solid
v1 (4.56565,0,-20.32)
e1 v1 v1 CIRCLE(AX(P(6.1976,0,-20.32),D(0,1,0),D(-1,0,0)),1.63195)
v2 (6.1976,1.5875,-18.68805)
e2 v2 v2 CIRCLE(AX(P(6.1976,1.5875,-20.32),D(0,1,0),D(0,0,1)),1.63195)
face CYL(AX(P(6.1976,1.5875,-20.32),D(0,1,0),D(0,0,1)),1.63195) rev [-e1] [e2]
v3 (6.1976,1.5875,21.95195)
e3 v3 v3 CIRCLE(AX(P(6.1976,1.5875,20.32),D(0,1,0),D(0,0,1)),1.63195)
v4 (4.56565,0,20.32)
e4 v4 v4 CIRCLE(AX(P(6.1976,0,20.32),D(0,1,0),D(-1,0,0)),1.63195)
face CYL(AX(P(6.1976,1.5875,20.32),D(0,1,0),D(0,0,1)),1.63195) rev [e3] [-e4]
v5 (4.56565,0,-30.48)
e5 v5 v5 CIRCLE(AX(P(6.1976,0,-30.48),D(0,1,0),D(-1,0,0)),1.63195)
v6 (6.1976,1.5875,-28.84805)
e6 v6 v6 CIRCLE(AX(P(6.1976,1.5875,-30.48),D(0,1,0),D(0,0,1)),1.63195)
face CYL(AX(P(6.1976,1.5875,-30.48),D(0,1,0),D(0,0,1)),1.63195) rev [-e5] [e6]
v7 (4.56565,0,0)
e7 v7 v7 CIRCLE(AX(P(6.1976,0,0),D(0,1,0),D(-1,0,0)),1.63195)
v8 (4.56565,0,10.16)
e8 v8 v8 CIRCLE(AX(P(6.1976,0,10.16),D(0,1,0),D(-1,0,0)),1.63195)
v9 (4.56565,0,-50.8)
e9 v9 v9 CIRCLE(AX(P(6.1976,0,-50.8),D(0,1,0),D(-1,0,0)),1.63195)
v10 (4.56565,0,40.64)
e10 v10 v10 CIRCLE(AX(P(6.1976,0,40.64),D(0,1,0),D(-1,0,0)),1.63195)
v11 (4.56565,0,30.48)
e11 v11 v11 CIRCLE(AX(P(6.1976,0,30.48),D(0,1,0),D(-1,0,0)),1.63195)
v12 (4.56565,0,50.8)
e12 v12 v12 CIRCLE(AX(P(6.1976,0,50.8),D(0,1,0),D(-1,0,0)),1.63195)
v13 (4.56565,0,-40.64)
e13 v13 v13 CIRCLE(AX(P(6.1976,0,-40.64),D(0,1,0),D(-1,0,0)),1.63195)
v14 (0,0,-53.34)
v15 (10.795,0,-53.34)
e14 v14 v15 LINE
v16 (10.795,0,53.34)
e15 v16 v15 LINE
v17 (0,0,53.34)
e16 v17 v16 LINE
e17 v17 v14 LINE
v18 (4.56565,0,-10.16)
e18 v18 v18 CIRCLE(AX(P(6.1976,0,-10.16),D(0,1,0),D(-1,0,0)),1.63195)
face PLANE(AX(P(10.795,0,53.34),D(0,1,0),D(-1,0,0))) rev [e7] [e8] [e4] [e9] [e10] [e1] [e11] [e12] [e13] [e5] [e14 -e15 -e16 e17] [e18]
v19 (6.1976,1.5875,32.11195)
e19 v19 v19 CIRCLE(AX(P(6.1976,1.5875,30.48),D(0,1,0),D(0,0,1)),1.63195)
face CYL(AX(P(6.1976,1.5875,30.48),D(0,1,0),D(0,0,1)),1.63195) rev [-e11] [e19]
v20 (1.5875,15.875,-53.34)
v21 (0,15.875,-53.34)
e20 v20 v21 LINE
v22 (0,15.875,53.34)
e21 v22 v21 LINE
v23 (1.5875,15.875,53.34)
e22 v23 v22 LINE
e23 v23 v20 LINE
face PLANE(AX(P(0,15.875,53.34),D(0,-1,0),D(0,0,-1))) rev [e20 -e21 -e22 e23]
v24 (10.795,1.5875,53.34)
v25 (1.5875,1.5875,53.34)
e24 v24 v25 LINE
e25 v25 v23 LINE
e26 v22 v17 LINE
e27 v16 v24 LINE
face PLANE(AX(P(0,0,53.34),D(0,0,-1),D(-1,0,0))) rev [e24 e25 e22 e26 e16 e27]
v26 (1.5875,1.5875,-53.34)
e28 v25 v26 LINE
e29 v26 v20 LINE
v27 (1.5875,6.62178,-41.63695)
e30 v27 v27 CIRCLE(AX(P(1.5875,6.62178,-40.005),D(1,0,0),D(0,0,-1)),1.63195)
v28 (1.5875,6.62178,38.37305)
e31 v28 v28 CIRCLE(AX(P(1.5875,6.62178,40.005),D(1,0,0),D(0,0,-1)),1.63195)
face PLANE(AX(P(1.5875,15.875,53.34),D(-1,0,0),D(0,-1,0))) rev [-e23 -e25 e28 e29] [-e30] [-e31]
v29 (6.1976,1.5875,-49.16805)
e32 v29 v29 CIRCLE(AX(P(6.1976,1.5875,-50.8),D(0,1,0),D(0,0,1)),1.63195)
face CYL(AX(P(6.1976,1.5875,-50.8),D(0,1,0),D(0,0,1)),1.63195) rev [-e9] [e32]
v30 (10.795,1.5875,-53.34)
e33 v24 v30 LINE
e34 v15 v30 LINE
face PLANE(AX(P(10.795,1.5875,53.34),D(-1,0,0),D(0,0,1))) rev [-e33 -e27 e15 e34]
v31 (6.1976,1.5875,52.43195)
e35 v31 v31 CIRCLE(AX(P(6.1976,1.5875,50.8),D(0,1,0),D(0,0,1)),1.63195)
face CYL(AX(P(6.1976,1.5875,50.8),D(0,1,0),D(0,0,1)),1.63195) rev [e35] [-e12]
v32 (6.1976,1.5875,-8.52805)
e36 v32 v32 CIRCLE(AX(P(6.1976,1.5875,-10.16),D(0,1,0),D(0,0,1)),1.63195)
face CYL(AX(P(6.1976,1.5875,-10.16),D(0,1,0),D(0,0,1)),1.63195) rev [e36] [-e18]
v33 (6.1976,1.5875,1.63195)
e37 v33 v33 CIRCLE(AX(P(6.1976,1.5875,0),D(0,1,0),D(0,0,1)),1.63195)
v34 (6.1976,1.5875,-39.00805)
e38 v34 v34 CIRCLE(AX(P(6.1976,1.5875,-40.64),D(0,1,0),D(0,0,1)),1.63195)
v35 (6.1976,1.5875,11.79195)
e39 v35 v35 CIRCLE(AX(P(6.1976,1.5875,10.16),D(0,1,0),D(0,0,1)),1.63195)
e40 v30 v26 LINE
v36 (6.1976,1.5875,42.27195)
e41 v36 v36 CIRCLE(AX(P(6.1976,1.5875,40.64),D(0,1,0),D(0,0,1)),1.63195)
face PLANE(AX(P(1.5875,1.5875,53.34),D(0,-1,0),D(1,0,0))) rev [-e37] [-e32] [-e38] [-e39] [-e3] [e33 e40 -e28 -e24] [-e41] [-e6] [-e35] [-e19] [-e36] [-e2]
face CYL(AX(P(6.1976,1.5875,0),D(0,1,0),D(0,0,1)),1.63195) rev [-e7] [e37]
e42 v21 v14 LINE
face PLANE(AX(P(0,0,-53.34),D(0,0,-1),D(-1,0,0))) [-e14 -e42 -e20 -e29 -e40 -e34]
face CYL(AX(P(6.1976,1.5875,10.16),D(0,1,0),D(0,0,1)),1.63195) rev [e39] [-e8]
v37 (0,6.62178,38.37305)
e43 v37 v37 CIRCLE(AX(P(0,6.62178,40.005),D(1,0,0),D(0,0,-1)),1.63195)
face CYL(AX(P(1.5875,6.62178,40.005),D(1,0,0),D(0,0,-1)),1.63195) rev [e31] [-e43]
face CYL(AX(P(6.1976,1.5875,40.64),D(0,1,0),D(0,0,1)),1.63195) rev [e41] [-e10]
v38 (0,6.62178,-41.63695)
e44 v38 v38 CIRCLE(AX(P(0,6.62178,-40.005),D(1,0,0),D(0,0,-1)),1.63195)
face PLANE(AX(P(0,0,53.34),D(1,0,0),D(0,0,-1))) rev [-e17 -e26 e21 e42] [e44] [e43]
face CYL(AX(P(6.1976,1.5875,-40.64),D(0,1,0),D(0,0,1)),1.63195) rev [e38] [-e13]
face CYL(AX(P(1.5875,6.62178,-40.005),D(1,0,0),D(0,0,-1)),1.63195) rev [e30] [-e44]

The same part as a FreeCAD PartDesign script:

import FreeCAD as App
import Part
import Sketcher

V = App.Vector
Q = App.Units.Quantity

doc = App.newDocument("Part")
params = doc.addObject("Spreadsheet::Sheet", "Params")
for row, (alias, value) in enumerate([
    ("sketch1_width", "0.425 in"),
    ("sketch1_width2", "0.0625 in"),
    ("sketch1_height", "0.625 in"),
    ("pad1_length", "4.2 in"),
    ("sketch2_width", "0.6 in"),
    ("groove_angle", "360 deg"),
    ("linearpattern_pitch", "0.4 in"),
    ("linearpattern2_pitch", "0.4 in"),
    ("hole_diameter", "0.1285 in"),
    ("hole_depth", "0.6 in"),
], start=1):
    params.set(f"A{row}", alias)
    params.set(f"B{row}", "=" + value)
    params.setAlias(f"B{row}", alias)

body = doc.addObject("PartDesign::Body", "Body")

sketch1 = doc.addObject("Sketcher::SketchObject", "Sketch")
body.addObject(sketch1)
sketch1.AttachmentSupport = (doc.XY_Plane, [""])
sketch1.MapMode = "FlatFace"
sketch1.addGeometry([
    Part.LineSegment(V(0, 15.9, 0), V(0, 0, 0)),
    Part.LineSegment(V(0, 0, 0), V(10.8, 0, 0)),
    Part.LineSegment(V(10.8, 0, 0), V(10.8, 1.6, 0)),
    Part.LineSegment(V(10.8, 1.6, 0), V(1.6, 1.6, 0)),
    Part.LineSegment(V(1.6, 1.6, 0), V(1.6, 15.9, 0)),
    Part.LineSegment(V(1.6, 15.9, 0), V(0, 15.9, 0)),
], False)
sketch1.addConstraint([
    Sketcher.Constraint("Coincident", 0, 2, 1, 1),
    Sketcher.Constraint("Coincident", 1, 2, 2, 1),
    Sketcher.Constraint("Coincident", 2, 2, 3, 1),
    Sketcher.Constraint("Coincident", 3, 2, 4, 1),
    Sketcher.Constraint("Coincident", 4, 2, 5, 1),
    Sketcher.Constraint("Coincident", 5, 2, 0, 1),
    Sketcher.Constraint("Vertical", 0),
    Sketcher.Constraint("Horizontal", 1),
    Sketcher.Constraint("Vertical", 2),
    Sketcher.Constraint("Horizontal", 3),
    Sketcher.Constraint("Vertical", 4),
    Sketcher.Constraint("Horizontal", 5),
    Sketcher.Constraint("Coincident", 0, 2, -1, 1),
    Sketcher.Constraint("Equal", 5, 2),
    Sketcher.Constraint("DistanceX", 1, 1, 1, 2, Q("0.425 in")),
    Sketcher.Constraint("DistanceX", 5, 2, 5, 1, Q("0.0625 in")),
    Sketcher.Constraint("DistanceY", 0, 2, 0, 1, Q("0.625 in")),
])
sketch1.setExpression("Constraints[14]", "Params.sketch1_width")
sketch1.setExpression("Constraints[15]", "Params.sketch1_width2")
sketch1.setExpression("Constraints[16]", "Params.sketch1_height")
pad1 = doc.addObject("PartDesign::Pad", "Pad")
body.addObject(pad1)
pad1.Profile = sketch1
pad1.setExpression("Length", "Params.pad1_length")
pad1.Midplane = True

sketch2 = doc.addObject("Sketcher::SketchObject", "Sketch001")
body.addObject(sketch2)
sketch2.AttachmentSupport = (doc.YZ_Plane, [""])
sketch2.MapMode = "FlatFace"
sketch2.AttachmentOffset = App.Placement(V(0, 0, 0.244 * 25.4), App.Rotation())
sketch2.addGeometry([
    Part.LineSegment(V(-14.6, 0, 0), V(1.6, 0, 0)),
    Part.LineSegment(V(1.6, 0, 0), V(1.6, 1.6, 0)),
    Part.LineSegment(V(1.6, 1.6, 0), V(-13.7, 1.6, 0)),
    Part.LineSegment(V(-13.7, 1.6, 0), V(-14.6, 0, 0)),
], False)
sketch2.addConstraint([
    Sketcher.Constraint("Coincident", 0, 2, 1, 1),
    Sketcher.Constraint("Coincident", 1, 2, 2, 1),
    Sketcher.Constraint("Coincident", 2, 2, 3, 1),
    Sketcher.Constraint("Coincident", 3, 2, 0, 1),
    Sketcher.Constraint("Horizontal", 0),
    Sketcher.Constraint("Vertical", 1),
    Sketcher.Constraint("Horizontal", 2),
    Sketcher.Constraint("PointOnObject", 0, 2, -1),
    Sketcher.Constraint("DistanceX", 2, 2, 2, 1, Q("0.6 in")),
    Sketcher.Constraint("Angle", 3, Q("-121 deg")),
    Sketcher.Constraint("DistanceX", -1, 1, 0, 2, Q("0.0625 in")),
    Sketcher.Constraint("DistanceY", 1, 1, 1, 2, 1.63195),
])
sketch2.setExpression("Constraints[8]", "Params.sketch2_width")
groove = doc.addObject("PartDesign::Groove", "Groove")
body.addObject(groove)
groove.Profile = sketch2
groove.ReferenceAxis = (sketch2, ["H_Axis"])
groove.setExpression("Angle", "Params.groove_angle")
doc.recompute()

linearpattern = doc.addObject("PartDesign::LinearPattern", "LinearPattern")
body.addObject(linearpattern)
linearpattern.Originals = [groove]
linearpattern.Direction = (doc.Z_Axis, [""])
linearpattern.Mode = "offset"
linearpattern.setExpression("Offset", "Params.linearpattern_pitch")
linearpattern.Occurrences = 6
body.Tip = linearpattern
doc.recompute()

linearpattern2 = doc.addObject("PartDesign::LinearPattern", "LinearPattern001")
body.addObject(linearpattern2)
linearpattern2.Originals = [groove]
linearpattern2.Direction = (doc.Z_Axis, [""])
linearpattern2.Mode = "offset"
linearpattern2.setExpression("Offset", "Params.linearpattern2_pitch")
linearpattern2.Occurrences = 6
linearpattern2.Reversed = True
body.Tip = linearpattern2

sketch3 = doc.addObject("Sketcher::SketchObject", "Sketch002")
body.addObject(sketch3)
sketch3.AttachmentSupport = (doc.YZ_Plane, [""])
sketch3.MapMode = "FlatFace"
sketch3.AttachmentOffset = App.Placement(V(0, 0, 0.0625 * 25.4), App.Rotation())
sketch3.addGeometry([
    Part.Circle(V(6.6, -40, 0), V(0, 0, 1), 1.6),
    Part.Circle(V(6.6, 40, 0), V(0, 0, 1), 1.6),
], False)
sketch3.addConstraint([
    Sketcher.Constraint("Equal", 0, 1),
    Sketcher.Constraint("Symmetric", 0, 3, 1, 3, -1),
    Sketcher.Constraint("Diameter", 0, Q("0.1285 in")),
    Sketcher.Constraint("DistanceY", 0, 3, 1, 3, Q("3.15 in")),
    Sketcher.Constraint("DistanceX", -1, 1, 0, 3, Q("0.2607 in")),
])
doc.recompute()
hole = doc.addObject("PartDesign::Hole", "Hole")
body.addObject(hole)
hole.Profile = sketch3
hole.ThreadType = "None"
hole.setExpression("Diameter", "Params.hole_diameter")
hole.DepthType = "Dimension"
hole.setExpression("Depth", "Params.hole_depth")
hole.DrillPoint = "Angled"
hole.DrillPointAngle = 118

doc.recompute()
